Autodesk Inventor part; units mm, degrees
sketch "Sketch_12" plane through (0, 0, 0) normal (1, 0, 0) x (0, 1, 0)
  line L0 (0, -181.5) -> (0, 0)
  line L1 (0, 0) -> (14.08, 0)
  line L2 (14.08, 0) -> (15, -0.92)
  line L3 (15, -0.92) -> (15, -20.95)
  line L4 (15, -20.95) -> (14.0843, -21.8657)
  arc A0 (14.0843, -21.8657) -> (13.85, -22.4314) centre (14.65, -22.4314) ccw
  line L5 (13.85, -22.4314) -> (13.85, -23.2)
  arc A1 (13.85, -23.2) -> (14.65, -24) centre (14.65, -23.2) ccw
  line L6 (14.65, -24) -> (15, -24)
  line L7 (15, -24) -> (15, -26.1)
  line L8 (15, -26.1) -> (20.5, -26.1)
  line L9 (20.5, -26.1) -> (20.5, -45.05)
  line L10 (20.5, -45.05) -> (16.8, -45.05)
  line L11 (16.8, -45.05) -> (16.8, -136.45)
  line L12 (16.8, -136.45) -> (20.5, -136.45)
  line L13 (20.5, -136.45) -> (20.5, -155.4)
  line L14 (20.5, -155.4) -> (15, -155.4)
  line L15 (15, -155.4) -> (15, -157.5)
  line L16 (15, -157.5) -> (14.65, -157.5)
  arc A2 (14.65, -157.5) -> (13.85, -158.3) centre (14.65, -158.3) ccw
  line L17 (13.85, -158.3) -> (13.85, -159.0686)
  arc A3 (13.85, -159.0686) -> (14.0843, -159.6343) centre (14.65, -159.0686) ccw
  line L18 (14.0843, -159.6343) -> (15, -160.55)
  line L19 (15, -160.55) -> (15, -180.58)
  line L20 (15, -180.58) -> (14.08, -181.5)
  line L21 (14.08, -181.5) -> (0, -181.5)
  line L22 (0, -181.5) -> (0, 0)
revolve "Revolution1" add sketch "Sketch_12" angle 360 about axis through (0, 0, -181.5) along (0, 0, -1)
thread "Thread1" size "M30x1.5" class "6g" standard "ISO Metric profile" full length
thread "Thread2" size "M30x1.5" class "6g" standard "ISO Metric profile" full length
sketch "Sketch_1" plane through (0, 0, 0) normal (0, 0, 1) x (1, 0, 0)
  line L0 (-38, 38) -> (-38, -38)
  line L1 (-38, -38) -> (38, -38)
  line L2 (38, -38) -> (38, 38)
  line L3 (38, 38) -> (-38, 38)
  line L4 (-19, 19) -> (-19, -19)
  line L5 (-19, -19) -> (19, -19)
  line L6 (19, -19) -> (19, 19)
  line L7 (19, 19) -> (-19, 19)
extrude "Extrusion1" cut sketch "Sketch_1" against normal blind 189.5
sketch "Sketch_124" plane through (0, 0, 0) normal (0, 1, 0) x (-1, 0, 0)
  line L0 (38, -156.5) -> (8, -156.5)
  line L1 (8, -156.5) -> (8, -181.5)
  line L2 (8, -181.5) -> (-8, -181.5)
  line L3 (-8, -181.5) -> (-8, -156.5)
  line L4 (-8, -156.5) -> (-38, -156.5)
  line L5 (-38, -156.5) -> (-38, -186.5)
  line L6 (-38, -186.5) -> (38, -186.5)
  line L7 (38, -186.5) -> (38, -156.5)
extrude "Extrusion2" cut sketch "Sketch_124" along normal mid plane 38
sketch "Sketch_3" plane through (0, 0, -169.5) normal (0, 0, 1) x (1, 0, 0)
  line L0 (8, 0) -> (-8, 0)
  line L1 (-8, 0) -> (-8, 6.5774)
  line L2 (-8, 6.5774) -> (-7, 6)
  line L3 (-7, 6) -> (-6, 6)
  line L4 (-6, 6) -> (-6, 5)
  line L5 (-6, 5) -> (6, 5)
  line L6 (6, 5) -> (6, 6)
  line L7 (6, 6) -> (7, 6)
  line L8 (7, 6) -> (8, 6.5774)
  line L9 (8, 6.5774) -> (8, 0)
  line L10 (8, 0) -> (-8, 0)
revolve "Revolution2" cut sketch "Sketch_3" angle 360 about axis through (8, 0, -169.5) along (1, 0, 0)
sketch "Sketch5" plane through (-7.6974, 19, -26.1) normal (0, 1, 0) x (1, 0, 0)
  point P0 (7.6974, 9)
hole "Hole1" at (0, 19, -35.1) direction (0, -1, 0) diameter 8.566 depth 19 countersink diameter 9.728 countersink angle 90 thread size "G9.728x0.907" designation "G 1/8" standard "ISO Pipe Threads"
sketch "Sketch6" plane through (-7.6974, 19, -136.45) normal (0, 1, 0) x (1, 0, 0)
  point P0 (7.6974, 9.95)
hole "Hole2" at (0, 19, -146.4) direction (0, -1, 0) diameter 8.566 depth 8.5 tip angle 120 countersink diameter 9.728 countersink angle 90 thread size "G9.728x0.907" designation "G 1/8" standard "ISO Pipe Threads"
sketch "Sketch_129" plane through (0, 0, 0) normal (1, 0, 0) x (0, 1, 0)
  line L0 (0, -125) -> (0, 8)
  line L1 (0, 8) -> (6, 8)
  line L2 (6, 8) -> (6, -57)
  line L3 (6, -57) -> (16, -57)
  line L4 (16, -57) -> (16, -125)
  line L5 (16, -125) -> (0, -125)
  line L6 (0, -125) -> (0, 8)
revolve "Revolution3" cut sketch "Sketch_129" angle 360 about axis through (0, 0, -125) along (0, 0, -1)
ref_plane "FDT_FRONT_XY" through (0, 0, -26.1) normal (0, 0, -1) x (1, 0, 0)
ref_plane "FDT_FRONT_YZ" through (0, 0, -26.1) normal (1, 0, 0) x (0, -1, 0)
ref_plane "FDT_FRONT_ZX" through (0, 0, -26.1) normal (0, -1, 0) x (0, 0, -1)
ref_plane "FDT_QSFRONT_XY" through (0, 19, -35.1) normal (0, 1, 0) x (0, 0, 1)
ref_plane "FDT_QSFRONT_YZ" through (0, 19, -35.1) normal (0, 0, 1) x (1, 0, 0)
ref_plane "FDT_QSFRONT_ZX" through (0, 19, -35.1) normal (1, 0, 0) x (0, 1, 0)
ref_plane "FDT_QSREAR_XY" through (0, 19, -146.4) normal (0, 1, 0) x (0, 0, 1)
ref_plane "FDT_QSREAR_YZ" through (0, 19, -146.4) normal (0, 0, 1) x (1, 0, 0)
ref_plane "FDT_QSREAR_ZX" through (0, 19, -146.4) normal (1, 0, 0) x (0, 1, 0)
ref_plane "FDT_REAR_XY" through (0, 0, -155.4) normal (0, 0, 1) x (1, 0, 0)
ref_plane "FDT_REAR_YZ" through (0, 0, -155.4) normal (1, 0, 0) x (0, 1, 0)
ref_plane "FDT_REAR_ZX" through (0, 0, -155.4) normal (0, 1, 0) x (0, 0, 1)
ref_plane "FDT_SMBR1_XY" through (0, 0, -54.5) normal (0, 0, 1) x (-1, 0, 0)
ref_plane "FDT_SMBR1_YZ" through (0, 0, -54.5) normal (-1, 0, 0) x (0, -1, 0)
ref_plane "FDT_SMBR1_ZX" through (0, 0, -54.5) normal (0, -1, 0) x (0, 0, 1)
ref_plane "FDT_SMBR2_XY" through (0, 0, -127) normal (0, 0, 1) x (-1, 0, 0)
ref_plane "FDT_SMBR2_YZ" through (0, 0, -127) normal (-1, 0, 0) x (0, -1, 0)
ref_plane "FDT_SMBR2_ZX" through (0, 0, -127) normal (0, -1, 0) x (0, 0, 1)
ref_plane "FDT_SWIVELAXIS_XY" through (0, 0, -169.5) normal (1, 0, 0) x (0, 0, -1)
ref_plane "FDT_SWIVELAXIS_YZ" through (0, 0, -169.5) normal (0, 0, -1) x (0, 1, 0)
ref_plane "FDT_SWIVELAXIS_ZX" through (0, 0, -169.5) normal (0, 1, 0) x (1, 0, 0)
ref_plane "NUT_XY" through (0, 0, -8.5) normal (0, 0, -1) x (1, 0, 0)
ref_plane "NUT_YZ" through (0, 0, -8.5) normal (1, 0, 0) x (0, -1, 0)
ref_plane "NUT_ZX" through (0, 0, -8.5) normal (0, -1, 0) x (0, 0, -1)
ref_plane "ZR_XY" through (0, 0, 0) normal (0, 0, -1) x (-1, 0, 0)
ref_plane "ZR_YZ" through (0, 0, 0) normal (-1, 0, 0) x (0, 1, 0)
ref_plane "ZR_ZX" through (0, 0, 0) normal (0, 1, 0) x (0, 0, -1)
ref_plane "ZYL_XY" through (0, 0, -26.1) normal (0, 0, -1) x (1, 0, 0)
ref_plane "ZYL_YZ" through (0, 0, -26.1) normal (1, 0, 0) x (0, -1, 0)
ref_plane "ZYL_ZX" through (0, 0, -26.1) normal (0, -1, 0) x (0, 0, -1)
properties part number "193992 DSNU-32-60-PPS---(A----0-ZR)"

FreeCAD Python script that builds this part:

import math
import FreeCAD as App
import Part
import Sketcher

V = App.Vector


def add_polygon(sketch, points):
    """Adds a closed chain of lines whose ends are joined by coincident constraints."""
    first, n = sketch.GeometryCount, len(points)
    for a, b in zip(points, points[1:] + points[:1]):
        sketch.addGeometry(Part.LineSegment(App.Vector(*a, 0), App.Vector(*b, 0)), False)
    for i in range(n):
        sketch.addConstraint(Sketcher.Constraint("Coincident", first + i, 2, first + (i + 1) % n, 1))

doc = App.newDocument("Part")
body = doc.addObject("PartDesign::Body", "Body")

# Sketch on YZ plane
sketch1 = doc.addObject("Sketcher::SketchObject", "Sketch")
body.addObject(sketch1)
sketch1.AttachmentSupport = (doc.YZ_Plane, [""])
sketch1.MapMode = "FlatFace"
sketch1.addGeometry([
    Part.LineSegment(V(0, 0, 0), V(0, -181.5, 0)),  # 0
    Part.LineSegment(V(0, -181.5, 0), V(14.08, -181.5, 0)),  # 1
    Part.LineSegment(V(14.08, -181.5, 0), V(15, -180.58, 0)),  # 2
    Part.LineSegment(V(15, -180.58, 0), V(15, -160.55, 0)),  # 3
    Part.LineSegment(V(15, -160.55, 0), V(14.08, -159.63, 0)),  # 4
    Part.ArcOfCircle(Part.Circle(V(14.65, -159.07, 0), V(0, 0, 1), 0.8), math.radians(180), math.radians(225)),  # 5
    Part.LineSegment(V(13.85, -159.07, 0), V(13.85, -158.3, 0)),  # 6
    Part.ArcOfCircle(Part.Circle(V(14.65, -158.3, 0), V(0, 0, 1), 0.8), math.radians(90), math.radians(180)),  # 7
    Part.LineSegment(V(14.65, -157.5, 0), V(15, -157.5, 0)),  # 8
    Part.LineSegment(V(15, -157.5, 0), V(15, -155.4, 0)),  # 9
    Part.LineSegment(V(15, -155.4, 0), V(20.5, -155.4, 0)),  # 10
    Part.LineSegment(V(20.5, -155.4, 0), V(20.5, -136.45, 0)),  # 11
    Part.LineSegment(V(20.5, -136.45, 0), V(16.8, -136.45, 0)),  # 12
    Part.LineSegment(V(16.8, -136.45, 0), V(16.8, -45.05, 0)),  # 13
    Part.LineSegment(V(16.8, -45.05, 0), V(20.5, -45.05, 0)),  # 14
    Part.LineSegment(V(20.5, -45.05, 0), V(20.5, -26.1, 0)),  # 15
    Part.LineSegment(V(20.5, -26.1, 0), V(15, -26.1, 0)),  # 16
    Part.LineSegment(V(15, -26.1, 0), V(15, -24, 0)),  # 17
    Part.LineSegment(V(15, -24, 0), V(14.65, -24, 0)),  # 18
    Part.ArcOfCircle(Part.Circle(V(14.65, -23.2, 0), V(0, 0, 1), 0.8), math.radians(180), math.radians(270)),  # 19
    Part.LineSegment(V(13.85, -23.2, 0), V(13.85, -22.43, 0)),  # 20
    Part.ArcOfCircle(Part.Circle(V(14.65, -22.43, 0), V(0, 0, 1), 0.8), math.radians(135), math.radians(180)),  # 21
    Part.LineSegment(V(14.08, -21.87, 0), V(15, -20.95, 0)),  # 22
    Part.LineSegment(V(15, -20.95, 0), V(15, -0.92, 0)),  # 23
    Part.LineSegment(V(15, -0.92, 0), V(14.08, 0, 0)),  # 24
    Part.LineSegment(V(14.08, 0, 0), V(0, 0, 0)),  # 25
], False)
sketch1.addConstraint([
    Sketcher.Constraint("Coincident", 0, 2, 1, 1),
    Sketcher.Constraint("Coincident", 1, 2, 2, 1),
    Sketcher.Constraint("Coincident", 2, 2, 3, 1),
    Sketcher.Constraint("Coincident", 3, 2, 4, 1),
    Sketcher.Constraint("Tangent", 4, 2, 5, 2),
    Sketcher.Constraint("Tangent", 5, 1, 6, 1),
    Sketcher.Constraint("Tangent", 6, 2, 7, 2),
    Sketcher.Constraint("Tangent", 7, 1, 8, 1),
    Sketcher.Constraint("Coincident", 8, 2, 9, 1),
    Sketcher.Constraint("Coincident", 9, 2, 10, 1),
    Sketcher.Constraint("Coincident", 10, 2, 11, 1),
    Sketcher.Constraint("Coincident", 11, 2, 12, 1),
    Sketcher.Constraint("Coincident", 12, 2, 13, 1),
    Sketcher.Constraint("Coincident", 13, 2, 14, 1),
    Sketcher.Constraint("Coincident", 14, 2, 15, 1),
    Sketcher.Constraint("Coincident", 15, 2, 16, 1),
    Sketcher.Constraint("Coincident", 16, 2, 17, 1),
    Sketcher.Constraint("Coincident", 17, 2, 18, 1),
    Sketcher.Constraint("Tangent", 18, 2, 19, 2),
    Sketcher.Constraint("Tangent", 19, 1, 20, 1),
    Sketcher.Constraint("Tangent", 20, 2, 21, 2),
    Sketcher.Constraint("Tangent", 21, 1, 22, 1),
    Sketcher.Constraint("Coincident", 22, 2, 23, 1),
    Sketcher.Constraint("Coincident", 23, 2, 24, 1),
    Sketcher.Constraint("Coincident", 24, 2, 25, 1),
    Sketcher.Constraint("Coincident", 25, 2, 0, 1),
    Sketcher.Constraint("Vertical", 0),
    Sketcher.Constraint("Horizontal", 1),
    Sketcher.Constraint("Vertical", 3),
    Sketcher.Constraint("Vertical", 6),
    Sketcher.Constraint("Horizontal", 8),
    Sketcher.Constraint("Vertical", 9),
    Sketcher.Constraint("Horizontal", 10),
    Sketcher.Constraint("Vertical", 11),
    Sketcher.Constraint("Horizontal", 12),
    Sketcher.Constraint("Vertical", 13),
    Sketcher.Constraint("Horizontal", 14),
    Sketcher.Constraint("Vertical", 15),
    Sketcher.Constraint("Horizontal", 16),
    Sketcher.Constraint("Vertical", 17),
    Sketcher.Constraint("Horizontal", 18),
    Sketcher.Constraint("Vertical", 20),
    Sketcher.Constraint("Vertical", 23),
    Sketcher.Constraint("Horizontal", 25),
    Sketcher.Constraint("Coincident", 25, 2, -1, 1),
    Sketcher.Constraint("Equal", 5, 7),
    Sketcher.Constraint("Equal", 7, 19),
    Sketcher.Constraint("Equal", 19, 21),
    Sketcher.Constraint("Perpendicular", 2, 4),
    Sketcher.Constraint("Perpendicular", 4, 22),
    Sketcher.Constraint("Perpendicular", 22, 24),
    Sketcher.Constraint("Vertical", 7, 3, 19, 3),
    Sketcher.Constraint("Vertical", 3, 2, 8, 2),
    Sketcher.Constraint("Vertical", 11, 2, 14, 2),
    Sketcher.Constraint("Vertical", 9, 2, 16, 2),
    Sketcher.Constraint("Vertical", 4, 2, 21, 1),
    Sketcher.Constraint("Vertical", 17, 2, 22, 2),
    Sketcher.Constraint("Vertical", 1, 2, 24, 2),
    Sketcher.Constraint("Equal", 11, 15),
    Sketcher.Constraint("Equal", 9, 17),
    Sketcher.Constraint("Equal", 6, 20),
    Sketcher.Constraint("Equal", 3, 23),
    Sketcher.Constraint("Radius", 5, 0.8),
    Sketcher.Constraint("DistanceX", 10, 1, 10, 2, 5.5),
    Sketcher.Constraint("DistanceX", 12, 2, 12, 1, 3.7),
    Sketcher.Constraint("DistanceY", 0, 2, 0, 1, 181.5),
    Sketcher.Constraint("DistanceY", 9, 1, 9, 2, 2.1),
    Sketcher.Constraint("DistanceY", 13, 1, 13, 2, 91.4),
    Sketcher.Constraint("DistanceX", -1, 1, 2, 2, 15.0),
    Sketcher.Constraint("DistanceY", 17, 2, -1, 1, 24.0),
    Sketcher.Constraint("DistanceX", 1, 1, 1, 2, 14.08),
    Sketcher.Constraint("DistanceX", 8, 1, 8, 2, 0.35),
    Sketcher.Constraint("DistanceY", 3, 1, 3, 2, 20.03),
])
revolution = doc.addObject("PartDesign::Revolution", "Revolution")
body.addObject(revolution)
revolution.Profile = sketch1
revolution.ReferenceAxis = (sketch1, ["V_Axis"])
revolution.Angle = 360

# Sketch on XY plane
sketch2 = doc.addObject("Sketcher::SketchObject", "Sketch001")
body.addObject(sketch2)
sketch2.AttachmentSupport = (doc.XY_Plane, [""])
sketch2.MapMode = "FlatFace"
add_polygon(sketch2, [(38, 38), (-38, 38), (-38, -38), (38, -38)])  # lines 0-3
add_polygon(sketch2, [(-19, -19), (-19, 19), (19, 19), (19, -19)])  # lines 4-7
sketch2.addConstraint([
    Sketcher.Constraint("Horizontal", 0),
    Sketcher.Constraint("Vertical", 1),
    Sketcher.Constraint("Horizontal", 2),
    Sketcher.Constraint("Vertical", 3),
    Sketcher.Constraint("Vertical", 4),
    Sketcher.Constraint("Horizontal", 5),
    Sketcher.Constraint("Vertical", 6),
    Sketcher.Constraint("Horizontal", 7),
    Sketcher.Constraint("Symmetric", 0, 2, 2, 2, -1, 1),
    Sketcher.Constraint("Symmetric", 4, 2, 6, 2, -1, 1),
    Sketcher.Constraint("Equal", 2, 1),
    Sketcher.Constraint("Equal", 7, 4),
    Sketcher.Constraint("DistanceX", 0, 2, 0, 1, 76.0),
    Sketcher.Constraint("DistanceX", 5, 1, 5, 2, 38.0),
])
pocket1 = doc.addObject("PartDesign::Pocket", "Pocket")
body.addObject(pocket1)
pocket1.Profile = sketch2
pocket1.Length = 189.5

# Sketch on XZ plane
sketch3 = doc.addObject("Sketcher::SketchObject", "Sketch002")
body.addObject(sketch3)
sketch3.AttachmentSupport = (doc.XZ_Plane, [""])
sketch3.MapMode = "FlatFace"
add_polygon(sketch3, [(-38, -186), (-38, -156), (-8, -156), (-8, -182), (8, -182), (8, -156), (38, -156), (38, -186)])  # lines 0-7
sketch3.addConstraint([
    Sketcher.Constraint("Vertical", 0),
    Sketcher.Constraint("Horizontal", 1),
    Sketcher.Constraint("Vertical", 2),
    Sketcher.Constraint("Horizontal", 3),
    Sketcher.Constraint("Vertical", 4),
    Sketcher.Constraint("Horizontal", 5),
    Sketcher.Constraint("Vertical", 6),
    Sketcher.Constraint("Horizontal", 7),
    Sketcher.Constraint("Symmetric", 1, 2, 4, 2, -2),
    Sketcher.Constraint("Equal", 1, 5),
    Sketcher.Constraint("Equal", 5, 0),
    Sketcher.Constraint("DistanceX", 1, 1, 1, 2, 30.0),
    Sketcher.Constraint("DistanceX", 3, 1, 3, 2, 16.0),
    Sketcher.Constraint("DistanceY", 2, 2, 2, 1, 25.0),
    Sketcher.Constraint("DistanceY", 0, 2, -1, 1, 156.5),
])
pocket2 = doc.addObject("PartDesign::Pocket", "Pocket001")
body.addObject(pocket2)
pocket2.Profile = sketch3
pocket2.Length = 38
pocket2.Midplane = True

# Sketch on XY plane
sketch4 = doc.addObject("Sketcher::SketchObject", "Sketch003")
body.addObject(sketch4)
sketch4.AttachmentSupport = (doc.XY_Plane, [""])
sketch4.MapMode = "FlatFace"
sketch4.AttachmentOffset = App.Placement(V(0, 0, -169.5), App.Rotation())
add_polygon(sketch4, [(-8, 0), (8, 0), (8, 6.6), (7, 6), (6, 6), (6, 5), (-6, 5), (-6, 6), (-7, 6), (-8, 6.6)])  # lines 0-9
sketch4.addConstraint([
    Sketcher.Constraint("Horizontal", 0),
    Sketcher.Constraint("Vertical", 1),
    Sketcher.Constraint("Horizontal", 3),
    Sketcher.Constraint("Vertical", 4),
    Sketcher.Constraint("Horizontal", 5),
    Sketcher.Constraint("Vertical", 6),
    Sketcher.Constraint("Horizontal", 7),
    Sketcher.Constraint("Vertical", 9),
    Sketcher.Constraint("Symmetric", 0, 2, 9, 2, -1, 1),
    Sketcher.Constraint("Symmetric", 3, 2, 6, 2, -2),
    Sketcher.Constraint("Horizontal", 1, 2, 8, 2),
    Sketcher.Constraint("Equal", 3, 7),
    Sketcher.Constraint("Equal", 7, 4),
    Sketcher.Constraint("DistanceX", 0, 1, 0, 2, 16.0),
    Sketcher.Constraint("DistanceX", 3, 2, 3, 1, 1.0),
    Sketcher.Constraint("DistanceX", 5, 2, 5, 1, 12.0),
    Sketcher.Constraint("DistanceY", -1, 1, 2, 2, 6.0),
    Sketcher.Constraint("DistanceY", 1, 1, 1, 2, 6.5774),
])
groove = doc.addObject("PartDesign::Groove", "Groove")
body.addObject(groove)
groove.Profile = sketch4
groove.ReferenceAxis = (sketch4, ["H_Axis"])
groove.Angle = 360

# Sketch on XZ plane
sketch5 = doc.addObject("Sketcher::SketchObject", "Sketch004")
body.addObject(sketch5)
sketch5.AttachmentSupport = (doc.XZ_Plane, [""])
sketch5.MapMode = "FlatFace"
sketch5.AttachmentOffset = App.Placement(V(0, 0, -19), App.Rotation())
sketch5.addGeometry(Part.Circle(V(0, -35.1, 0), V(0, 0, 1), 4.3), False)
sketch5.addConstraint([
    Sketcher.Constraint("PointOnObject", 0, 3, -2),
    Sketcher.Constraint("Diameter", 0, 8.566),
    Sketcher.Constraint("DistanceY", 0, 3, -1, 1, 35.1),
])
doc.recompute()
hole = doc.addObject("PartDesign::Hole", "Hole")
body.addObject(hole)
hole.Profile = sketch5
hole.ThreadType = "None"
hole.Diameter = 8.566
hole.DepthType = "Dimension"
hole.Depth = 19
hole.DrillPoint = "Flat"
hole.HoleCutType = "Countersink"
hole.HoleCutDiameter = 9.728
hole.HoleCutCountersinkAngle = 90
hole.Reversed = True

# Sketch on XZ plane
sketch6 = doc.addObject("Sketcher::SketchObject", "Sketch005")
body.addObject(sketch6)
sketch6.AttachmentSupport = (doc.XZ_Plane, [""])
sketch6.MapMode = "FlatFace"
sketch6.AttachmentOffset = App.Placement(V(0, 0, -19), App.Rotation())
sketch6.addGeometry(Part.Circle(V(0, -146.4, 0), V(0, 0, 1), 4.3), False)
sketch6.addConstraint([
    Sketcher.Constraint("PointOnObject", 0, 3, -2),
    Sketcher.Constraint("Diameter", 0, 8.566),
    Sketcher.Constraint("DistanceY", 0, 3, -1, 1, 146.4),
])
doc.recompute()
hole2 = doc.addObject("PartDesign::Hole", "Hole001")
body.addObject(hole2)
hole2.Profile = sketch6
hole2.ThreadType = "None"
hole2.Diameter = 8.566
hole2.DepthType = "Dimension"
hole2.Depth = 8.5
hole2.DrillPoint = "Angled"
hole2.DrillPointAngle = 120
hole2.HoleCutType = "Countersink"
hole2.HoleCutDiameter = 9.728
hole2.HoleCutCountersinkAngle = 90
hole2.Reversed = True

# Sketch on YZ plane
sketch7 = doc.addObject("Sketcher::SketchObject", "Sketch006")
body.addObject(sketch7)
sketch7.AttachmentSupport = (doc.YZ_Plane, [""])
sketch7.MapMode = "FlatFace"
add_polygon(sketch7, [(0, 8), (0, -125), (16, -125), (16, -57), (6, -57), (6, 8)])  # lines 0-5
sketch7.addConstraint([
    Sketcher.Constraint("Vertical", 0),
    Sketcher.Constraint("Horizontal", 1),
    Sketcher.Constraint("Vertical", 2),
    Sketcher.Constraint("Horizontal", 3),
    Sketcher.Constraint("Vertical", 4),
    Sketcher.Constraint("Horizontal", 5),
    Sketcher.Constraint("PointOnObject", 0, 2, -2),
    Sketcher.Constraint("DistanceX", 1, 1, 1, 2, 16.0),
    Sketcher.Constraint("DistanceX", 3, 2, 3, 1, 10.0),
    Sketcher.Constraint("DistanceY", 0, 2, 0, 1, 133.0),
    Sketcher.Constraint("DistanceY", 2, 1, 2, 2, 68.0),
    Sketcher.Constraint("DistanceY", 0, 2, -1, 1, 125.0),
])
groove2 = doc.addObject("PartDesign::Groove", "Groove001")
body.addObject(groove2)
groove2.Profile = sketch7
groove2.ReferenceAxis = (sketch7, ["V_Axis"])
groove2.Angle = 360

doc.recompute()
